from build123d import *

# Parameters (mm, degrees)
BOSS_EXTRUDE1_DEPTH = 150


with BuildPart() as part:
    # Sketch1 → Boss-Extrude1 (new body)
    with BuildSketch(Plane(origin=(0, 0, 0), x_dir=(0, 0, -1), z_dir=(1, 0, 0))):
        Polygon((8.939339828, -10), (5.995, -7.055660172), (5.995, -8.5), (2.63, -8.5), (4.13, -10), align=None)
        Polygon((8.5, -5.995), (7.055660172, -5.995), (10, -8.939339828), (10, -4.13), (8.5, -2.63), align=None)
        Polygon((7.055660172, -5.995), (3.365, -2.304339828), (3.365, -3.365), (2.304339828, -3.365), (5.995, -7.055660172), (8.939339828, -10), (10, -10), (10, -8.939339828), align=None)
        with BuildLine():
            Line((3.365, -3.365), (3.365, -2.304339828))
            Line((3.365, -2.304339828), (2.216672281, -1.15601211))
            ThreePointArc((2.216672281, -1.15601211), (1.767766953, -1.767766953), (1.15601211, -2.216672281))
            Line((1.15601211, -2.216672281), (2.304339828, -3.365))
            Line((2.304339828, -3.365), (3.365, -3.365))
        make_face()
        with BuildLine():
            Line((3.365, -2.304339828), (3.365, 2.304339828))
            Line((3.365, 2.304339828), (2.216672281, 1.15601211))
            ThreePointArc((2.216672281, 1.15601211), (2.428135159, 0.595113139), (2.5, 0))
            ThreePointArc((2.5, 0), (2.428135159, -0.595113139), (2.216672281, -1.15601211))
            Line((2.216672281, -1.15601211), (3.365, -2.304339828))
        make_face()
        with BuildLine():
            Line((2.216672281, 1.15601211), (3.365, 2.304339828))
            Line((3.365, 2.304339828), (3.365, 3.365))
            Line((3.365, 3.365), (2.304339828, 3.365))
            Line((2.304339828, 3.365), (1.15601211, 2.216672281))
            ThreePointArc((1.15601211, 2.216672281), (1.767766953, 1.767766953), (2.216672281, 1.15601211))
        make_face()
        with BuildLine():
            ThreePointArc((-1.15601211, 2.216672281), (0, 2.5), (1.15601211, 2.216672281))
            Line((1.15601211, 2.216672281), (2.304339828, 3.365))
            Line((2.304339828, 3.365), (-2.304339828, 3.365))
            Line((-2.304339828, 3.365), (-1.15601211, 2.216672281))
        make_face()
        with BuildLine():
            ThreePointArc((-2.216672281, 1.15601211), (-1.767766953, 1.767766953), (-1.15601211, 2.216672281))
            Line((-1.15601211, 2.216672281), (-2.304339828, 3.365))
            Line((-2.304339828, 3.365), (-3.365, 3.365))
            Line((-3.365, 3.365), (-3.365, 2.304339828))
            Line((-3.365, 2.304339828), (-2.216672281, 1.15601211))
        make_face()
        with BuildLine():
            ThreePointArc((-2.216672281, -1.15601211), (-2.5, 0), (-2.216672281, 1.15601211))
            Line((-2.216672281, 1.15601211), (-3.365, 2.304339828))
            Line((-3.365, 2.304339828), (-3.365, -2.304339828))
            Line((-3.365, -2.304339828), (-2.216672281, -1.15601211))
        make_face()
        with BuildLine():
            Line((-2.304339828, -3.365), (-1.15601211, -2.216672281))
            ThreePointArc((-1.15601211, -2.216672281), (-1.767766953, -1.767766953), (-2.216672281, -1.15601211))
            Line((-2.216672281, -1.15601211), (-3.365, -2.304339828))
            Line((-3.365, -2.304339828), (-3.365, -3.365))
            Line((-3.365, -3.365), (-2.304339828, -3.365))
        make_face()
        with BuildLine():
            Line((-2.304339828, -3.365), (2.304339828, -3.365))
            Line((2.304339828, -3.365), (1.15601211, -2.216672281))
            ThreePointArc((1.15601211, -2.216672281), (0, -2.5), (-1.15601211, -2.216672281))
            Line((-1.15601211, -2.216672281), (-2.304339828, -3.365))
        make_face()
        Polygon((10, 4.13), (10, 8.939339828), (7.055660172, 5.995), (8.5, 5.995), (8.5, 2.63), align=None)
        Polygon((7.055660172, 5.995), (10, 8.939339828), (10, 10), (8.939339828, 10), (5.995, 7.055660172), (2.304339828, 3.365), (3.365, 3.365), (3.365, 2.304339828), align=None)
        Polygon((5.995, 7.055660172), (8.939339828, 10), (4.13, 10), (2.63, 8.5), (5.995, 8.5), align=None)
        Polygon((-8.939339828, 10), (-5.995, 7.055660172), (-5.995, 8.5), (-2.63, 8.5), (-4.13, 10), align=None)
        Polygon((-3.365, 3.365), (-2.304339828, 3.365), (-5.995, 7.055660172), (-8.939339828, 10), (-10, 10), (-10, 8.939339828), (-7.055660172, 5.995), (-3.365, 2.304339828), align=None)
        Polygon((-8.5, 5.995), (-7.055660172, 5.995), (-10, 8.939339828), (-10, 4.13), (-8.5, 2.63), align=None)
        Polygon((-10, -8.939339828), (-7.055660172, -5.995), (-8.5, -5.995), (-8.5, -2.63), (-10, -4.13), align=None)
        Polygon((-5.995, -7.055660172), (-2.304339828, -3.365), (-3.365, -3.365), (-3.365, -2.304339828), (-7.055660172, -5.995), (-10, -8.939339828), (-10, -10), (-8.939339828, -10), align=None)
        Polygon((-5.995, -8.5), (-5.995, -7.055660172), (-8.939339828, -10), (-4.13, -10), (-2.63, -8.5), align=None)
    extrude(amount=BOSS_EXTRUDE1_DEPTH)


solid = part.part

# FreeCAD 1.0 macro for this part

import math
import FreeCAD as App
import Part
import Sketcher

V = App.Vector
Q = App.Units.Quantity

doc = App.newDocument("Part")
body = doc.addObject("PartDesign::Body", "Body")

# Sketch on YZ plane
sketch1 = body.newObject("Sketcher::SketchObject", "Sketch")
sketch1.AttachmentSupport = (doc.getObject("YZ_Plane"), [""])
sketch1.MapMode = "FlatFace"
sketch1.addGeometry(Part.LineSegment(V(-7.1, -6, 0), V(-8.5, -6, 0)), False)
sketch1.addGeometry(Part.LineSegment(V(-8.5, -6, 0), V(-8.5, -2.6, 0)), False)
sketch1.addGeometry(Part.LineSegment(V(-8.5, -2.6, 0), V(-10, -4.1, 0)), False)
sketch1.addGeometry(Part.LineSegment(V(-10, -4.1, 0), V(-10, -10, 0)), False)
sketch1.addGeometry(Part.LineSegment(V(-10, -10, 0), V(-4.1, -10, 0)), False)
sketch1.addGeometry(Part.LineSegment(V(-4.1, -10, 0), V(-2.6, -8.5, 0)), False)
sketch1.addGeometry(Part.LineSegment(V(-2.6, -8.5, 0), V(-6, -8.5, 0)), False)
sketch1.addGeometry(Part.LineSegment(V(-6, -8.5, 0), V(-6, -7.1, 0)), False)
sketch1.addGeometry(Part.LineSegment(V(-6, -7.1, 0), V(-2.3, -3.4, 0)), False)
sketch1.addGeometry(Part.LineSegment(V(-2.3, -3.4, 0), V(2.3, -3.4, 0)), False)
sketch1.addGeometry(Part.LineSegment(V(2.3, -3.4, 0), V(6, -7.1, 0)), False)
sketch1.addGeometry(Part.LineSegment(V(6, -7.1, 0), V(6, -8.5, 0)), False)
sketch1.addGeometry(Part.LineSegment(V(6, -8.5, 0), V(2.6, -8.5, 0)), False)
sketch1.addGeometry(Part.LineSegment(V(2.6, -8.5, 0), V(4.1, -10, 0)), False)
sketch1.addGeometry(Part.LineSegment(V(4.1, -10, 0), V(10, -10, 0)), False)
sketch1.addGeometry(Part.LineSegment(V(10, -10, 0), V(10, -4.1, 0)), False)
sketch1.addGeometry(Part.LineSegment(V(10, -4.1, 0), V(8.5, -2.6, 0)), False)
sketch1.addGeometry(Part.LineSegment(V(8.5, -2.6, 0), V(8.5, -6, 0)), False)
sketch1.addGeometry(Part.LineSegment(V(8.5, -6, 0), V(7.1, -6, 0)), False)
sketch1.addGeometry(Part.LineSegment(V(7.1, -6, 0), V(3.4, -2.3, 0)), False)
sketch1.addGeometry(Part.LineSegment(V(3.4, -2.3, 0), V(3.4, 2.3, 0)), False)
sketch1.addGeometry(Part.LineSegment(V(3.4, 2.3, 0), V(7.1, 6, 0)), False)
sketch1.addGeometry(Part.LineSegment(V(7.1, 6, 0), V(8.5, 6, 0)), False)
sketch1.addGeometry(Part.LineSegment(V(8.5, 6, 0), V(8.5, 2.6, 0)), False)
sketch1.addGeometry(Part.LineSegment(V(8.5, 2.6, 0), V(10, 4.1, 0)), False)
sketch1.addGeometry(Part.LineSegment(V(10, 4.1, 0), V(10, 10, 0)), False)
sketch1.addGeometry(Part.LineSegment(V(10, 10, 0), V(4.1, 10, 0)), False)
sketch1.addGeometry(Part.LineSegment(V(4.1, 10, 0), V(2.6, 8.5, 0)), False)
sketch1.addGeometry(Part.LineSegment(V(2.6, 8.5, 0), V(6, 8.5, 0)), False)
sketch1.addGeometry(Part.LineSegment(V(6, 8.5, 0), V(6, 7.1, 0)), False)
sketch1.addGeometry(Part.LineSegment(V(6, 7.1, 0), V(2.3, 3.4, 0)), False)
sketch1.addGeometry(Part.LineSegment(V(2.3, 3.4, 0), V(-2.3, 3.4, 0)), False)
sketch1.addGeometry(Part.LineSegment(V(-2.3, 3.4, 0), V(-6, 7.1, 0)), False)
sketch1.addGeometry(Part.LineSegment(V(-6, 7.1, 0), V(-6, 8.5, 0)), False)
sketch1.addGeometry(Part.LineSegment(V(-6, 8.5, 0), V(-2.6, 8.5, 0)), False)
sketch1.addGeometry(Part.LineSegment(V(-2.6, 8.5, 0), V(-4.1, 10, 0)), False)
sketch1.addGeometry(Part.LineSegment(V(-4.1, 10, 0), V(-10, 10, 0)), False)
sketch1.addGeometry(Part.LineSegment(V(-10, 10, 0), V(-10, 4.1, 0)), False)
sketch1.addGeometry(Part.LineSegment(V(-10, 4.1, 0), V(-8.5, 2.6, 0)), False)
sketch1.addGeometry(Part.LineSegment(V(-8.5, 2.6, 0), V(-8.5, 6, 0)), False)
sketch1.addGeometry(Part.LineSegment(V(-8.5, 6, 0), V(-7.1, 6, 0)), False)
sketch1.addGeometry(Part.LineSegment(V(-7.1, 6, 0), V(-3.4, 2.3, 0)), False)
sketch1.addGeometry(Part.LineSegment(V(-3.4, 2.3, 0), V(-3.4, -2.3, 0)), False)
sketch1.addGeometry(Part.LineSegment(V(-3.4, -2.3, 0), V(-7.1, -6, 0)), False)
sketch1.addGeometry(Part.ArcOfCircle(Part.Circle(V(0, 0, 0), V(0, 0, 1), 2.5), math.radians(118), math.radians(152)), False)
sketch1.addGeometry(Part.ArcOfCircle(Part.Circle(V(0, 0, 0), V(0, 0, 1), 2.5), math.radians(62), math.radians(118)), False)
sketch1.addGeometry(Part.ArcOfCircle(Part.Circle(V(0, 0, 0), V(0, 0, 1), 2.5), math.radians(28), math.radians(62)), False)
sketch1.addGeometry(Part.ArcOfCircle(Part.Circle(V(0, 0, 0), V(0, 0, 1), 2.5), math.radians(-28), math.radians(28)), False)
sketch1.addGeometry(Part.ArcOfCircle(Part.Circle(V(0, 0, 0), V(0, 0, 1), 2.5), math.radians(-62), math.radians(-28)), False)
sketch1.addGeometry(Part.ArcOfCircle(Part.Circle(V(0, 0, 0), V(0, 0, 1), 2.5), math.radians(-90), math.radians(-62)), False)
sketch1.addGeometry(Part.ArcOfCircle(Part.Circle(V(0, 0, 0), V(0, 0, 1), 2.5), math.radians(-118), math.radians(-90)), False)
sketch1.addGeometry(Part.ArcOfCircle(Part.Circle(V(0, 0, 0), V(0, 0, 1), 2.5), math.radians(-152), math.radians(-118)), False)
sketch1.addGeometry(Part.ArcOfCircle(Part.Circle(V(0, 0, 0), V(0, 0, 1), 2.5), math.radians(152), math.radians(208)), False)
sketch1.addConstraint(Sketcher.Constraint("Coincident", 0, 2, 1, 1))
sketch1.addConstraint(Sketcher.Constraint("Coincident", 1, 2, 2, 1))
sketch1.addConstraint(Sketcher.Constraint("Coincident", 2, 2, 3, 1))
sketch1.addConstraint(Sketcher.Constraint("Coincident", 3, 2, 4, 1))
sketch1.addConstraint(Sketcher.Constraint("Coincident", 4, 2, 5, 1))
sketch1.addConstraint(Sketcher.Constraint("Coincident", 5, 2, 6, 1))
sketch1.addConstraint(Sketcher.Constraint("Coincident", 6, 2, 7, 1))
sketch1.addConstraint(Sketcher.Constraint("Coincident", 7, 2, 8, 1))
sketch1.addConstraint(Sketcher.Constraint("Coincident", 8, 2, 9, 1))
sketch1.addConstraint(Sketcher.Constraint("Coincident", 9, 2, 10, 1))
sketch1.addConstraint(Sketcher.Constraint("Coincident", 10, 2, 11, 1))
sketch1.addConstraint(Sketcher.Constraint("Coincident", 11, 2, 12, 1))
sketch1.addConstraint(Sketcher.Constraint("Coincident", 12, 2, 13, 1))
sketch1.addConstraint(Sketcher.Constraint("Coincident", 13, 2, 14, 1))
sketch1.addConstraint(Sketcher.Constraint("Coincident", 14, 2, 15, 1))
sketch1.addConstraint(Sketcher.Constraint("Coincident", 15, 2, 16, 1))
sketch1.addConstraint(Sketcher.Constraint("Coincident", 16, 2, 17, 1))
sketch1.addConstraint(Sketcher.Constraint("Coincident", 17, 2, 18, 1))
sketch1.addConstraint(Sketcher.Constraint("Coincident", 18, 2, 19, 1))
sketch1.addConstraint(Sketcher.Constraint("Coincident", 19, 2, 20, 1))
sketch1.addConstraint(Sketcher.Constraint("Coincident", 20, 2, 21, 1))
sketch1.addConstraint(Sketcher.Constraint("Coincident", 21, 2, 22, 1))
sketch1.addConstraint(Sketcher.Constraint("Coincident", 22, 2, 23, 1))
sketch1.addConstraint(Sketcher.Constraint("Coincident", 23, 2, 24, 1))
sketch1.addConstraint(Sketcher.Constraint("Coincident", 24, 2, 25, 1))
sketch1.addConstraint(Sketcher.Constraint("Coincident", 25, 2, 26, 1))
sketch1.addConstraint(Sketcher.Constraint("Coincident", 26, 2, 27, 1))
sketch1.addConstraint(Sketcher.Constraint("Coincident", 27, 2, 28, 1))
sketch1.addConstraint(Sketcher.Constraint("Coincident", 28, 2, 29, 1))
sketch1.addConstraint(Sketcher.Constraint("Coincident", 29, 2, 30, 1))
sketch1.addConstraint(Sketcher.Constraint("Coincident", 30, 2, 31, 1))
sketch1.addConstraint(Sketcher.Constraint("Coincident", 31, 2, 32, 1))
sketch1.addConstraint(Sketcher.Constraint("Coincident", 32, 2, 33, 1))
sketch1.addConstraint(Sketcher.Constraint("Coincident", 33, 2, 34, 1))
sketch1.addConstraint(Sketcher.Constraint("Coincident", 34, 2, 35, 1))
sketch1.addConstraint(Sketcher.Constraint("Coincident", 35, 2, 36, 1))
sketch1.addConstraint(Sketcher.Constraint("Coincident", 36, 2, 37, 1))
sketch1.addConstraint(Sketcher.Constraint("Coincident", 37, 2, 38, 1))
sketch1.addConstraint(Sketcher.Constraint("Coincident", 38, 2, 39, 1))
sketch1.addConstraint(Sketcher.Constraint("Coincident", 39, 2, 40, 1))
sketch1.addConstraint(Sketcher.Constraint("Coincident", 40, 2, 41, 1))
sketch1.addConstraint(Sketcher.Constraint("Coincident", 41, 2, 42, 1))
sketch1.addConstraint(Sketcher.Constraint("Coincident", 42, 2, 43, 1))
sketch1.addConstraint(Sketcher.Constraint("Coincident", 43, 2, 0, 1))
sketch1.addConstraint(Sketcher.Constraint("Tangent", 44, 1, 45, 2))
sketch1.addConstraint(Sketcher.Constraint("Tangent", 45, 1, 46, 2))
sketch1.addConstraint(Sketcher.Constraint("Tangent", 46, 1, 47, 2))
sketch1.addConstraint(Sketcher.Constraint("Tangent", 47, 1, 48, 2))
sketch1.addConstraint(Sketcher.Constraint("Tangent", 48, 1, 49, 2))
sketch1.addConstraint(Sketcher.Constraint("Tangent", 49, 1, 50, 2))
sketch1.addConstraint(Sketcher.Constraint("Tangent", 50, 1, 51, 2))
sketch1.addConstraint(Sketcher.Constraint("Tangent", 51, 1, 52, 2))
sketch1.addConstraint(Sketcher.Constraint("Tangent", 52, 1, 44, 2))
sketch1.addConstraint(Sketcher.Constraint("Horizontal", 0))
sketch1.addConstraint(Sketcher.Constraint("Vertical", 1))
sketch1.addConstraint(Sketcher.Constraint("Vertical", 3))
sketch1.addConstraint(Sketcher.Constraint("Horizontal", 4))
sketch1.addConstraint(Sketcher.Constraint("Horizontal", 6))
sketch1.addConstraint(Sketcher.Constraint("Vertical", 7))
sketch1.addConstraint(Sketcher.Constraint("Horizontal", 9))
sketch1.addConstraint(Sketcher.Constraint("Vertical", 11))
sketch1.addConstraint(Sketcher.Constraint("Horizontal", 12))
sketch1.addConstraint(Sketcher.Constraint("Horizontal", 14))
sketch1.addConstraint(Sketcher.Constraint("Vertical", 15))
sketch1.addConstraint(Sketcher.Constraint("Vertical", 17))
sketch1.addConstraint(Sketcher.Constraint("Horizontal", 18))
sketch1.addConstraint(Sketcher.Constraint("Vertical", 20))
sketch1.addConstraint(Sketcher.Constraint("Horizontal", 22))
sketch1.addConstraint(Sketcher.Constraint("Vertical", 23))
sketch1.addConstraint(Sketcher.Constraint("Vertical", 25))
sketch1.addConstraint(Sketcher.Constraint("Horizontal", 26))
sketch1.addConstraint(Sketcher.Constraint("Horizontal", 28))
sketch1.addConstraint(Sketcher.Constraint("Vertical", 29))
sketch1.addConstraint(Sketcher.Constraint("Horizontal", 31))
sketch1.addConstraint(Sketcher.Constraint("Vertical", 33))
sketch1.addConstraint(Sketcher.Constraint("Horizontal", 34))
sketch1.addConstraint(Sketcher.Constraint("Horizontal", 36))
sketch1.addConstraint(Sketcher.Constraint("Vertical", 37))
sketch1.addConstraint(Sketcher.Constraint("Vertical", 39))
sketch1.addConstraint(Sketcher.Constraint("Horizontal", 40))
sketch1.addConstraint(Sketcher.Constraint("Vertical", 42))
sketch1.addConstraint(Sketcher.Constraint("Coincident", 44, 3, -1, 1))
sketch1.addConstraint(Sketcher.Constraint("Coincident", 46, 3, -1, 1))
sketch1.addConstraint(Sketcher.Constraint("Coincident", 48, 3, -1, 1))
sketch1.addConstraint(Sketcher.Constraint("Coincident", 50, 3, -1, 1))
sketch1.addConstraint(Sketcher.Constraint("Symmetric", 0, 2, 22, 2, -1, 1))
sketch1.addConstraint(Sketcher.Constraint("Symmetric", 2, 2, 24, 2, -1, 1))
sketch1.addConstraint(Sketcher.Constraint("Symmetric", 4, 2, 26, 2, -1, 1))
sketch1.addConstraint(Sketcher.Constraint("Symmetric", 5, 2, 27, 2, -1, 1))
sketch1.addConstraint(Sketcher.Constraint("Symmetric", 7, 2, 29, 2, -1, 1))
sketch1.addConstraint(Sketcher.Constraint("Symmetric", 8, 2, 30, 2, -1, 1))
sketch1.addConstraint(Sketcher.Constraint("Symmetric", 10, 2, 32, 2, -1, 1))
sketch1.addConstraint(Sketcher.Constraint("Symmetric", 12, 2, 34, 2, -1, 1))
sketch1.addConstraint(Sketcher.Constraint("Symmetric", 13, 2, 35, 2, -1, 1))
sketch1.addConstraint(Sketcher.Constraint("Symmetric", 15, 2, 37, 2, -1, 1))
sketch1.addConstraint(Sketcher.Constraint("Symmetric", 16, 2, 38, 2, -1, 1))
sketch1.addConstraint(Sketcher.Constraint("Symmetric", 18, 2, 40, 2, -1, 1))
sketch1.addConstraint(Sketcher.Constraint("Symmetric", 19, 2, 41, 2, -1, 1))
sketch1.addConstraint(Sketcher.Constraint("Symmetric", 7, 2, 10, 2, -2))
sketch1.addConstraint(Sketcher.Constraint("Symmetric", 5, 2, 12, 2, -2))
sketch1.addConstraint(Sketcher.Constraint("Symmetric", 4, 2, 13, 2, -2))
sketch1.addConstraint(Sketcher.Constraint("Symmetric", 2, 2, 15, 2, -2))
sketch1.addConstraint(Sketcher.Constraint("Symmetric", 1, 2, 16, 2, -2))
sketch1.addConstraint(Sketcher.Constraint("Symmetric", 21, 2, 40, 2, -2))
sketch1.addConstraint(Sketcher.Constraint("PointOnObject", 49, 1, -2))
sketch1.addConstraint(Sketcher.Constraint("Parallel", 2, 5))
sketch1.addConstraint(Sketcher.Constraint("Parallel", 5, 8))
sketch1.addConstraint(Sketcher.Constraint("Perpendicular", 8, 10))
sketch1.addConstraint(Sketcher.Constraint("Parallel", 10, 13))
sketch1.addConstraint(Sketcher.Constraint("Parallel", 16, 19))
sketch1.addConstraint(Sketcher.Constraint("Perpendicular", 19, 21))
sketch1.addConstraint(Sketcher.Constraint("Parallel", 21, 24))
sketch1.addConstraint(Sketcher.Constraint("Perpendicular", 30, 32))
sketch1.addConstraint(Sketcher.Constraint("Perpendicular", 41, 43))
sketch1.addConstraint(Sketcher.Constraint("Horizontal", 19, 2, 42, 2))
sketch1.addConstraint(Sketcher.Constraint("Horizontal", 44, 1, 45, 1))
sketch1.addConstraint(Sketcher.Constraint("Horizontal", 48, 1, 50, 1))
sketch1.addConstraint(Sketcher.Constraint("Horizontal", 47, 1, 51, 1))
sketch1.addConstraint(Sketcher.Constraint("Horizontal", 46, 1, 52, 1))
sketch1.addConstraint(Sketcher.Constraint("Vertical", 46, 1, 47, 1))
sketch1.addConstraint(Sketcher.Constraint("Vertical", 45, 1, 48, 1))
sketch1.addConstraint(Sketcher.Constraint("Equal", 34, 1))
sketch1.addConstraint(Sketcher.Constraint("Equal", 36, 3))
sketch1.addConstraint(Sketcher.Constraint("Equal", 40, 7))
sketch1.addConstraint(Sketcher.Constraint("Equal", 31, 20))
sketch1.addConstraint(Sketcher.Constraint("Equal", 2, 5))
sketch1.addConstraint(Sketcher.Constraint("Equal", 10, 19))
sketch1.addConstraint(Sketcher.Constraint("Radius", 44, Q("2.5 mm")))
sketch1.addConstraint(Sketcher.Constraint("DistanceX", 2, 2, -1, 1, Q("10 mm")))
sketch1.addConstraint(Sketcher.Constraint("DistanceX", 4, 1, 4, 2, Q("5.87 mm")))
sketch1.addConstraint(Sketcher.Constraint("DistanceX", 0, 2, -1, 1, Q("8.5 mm")))
sketch1.addConstraint(Sketcher.Constraint("DistanceX", 6, 2, 6, 1, Q("3.365 mm")))
sketch1.addConstraint(Sketcher.Constraint("DistanceY", 8, 2, -1, 1, Q("3.365 mm")))
sketch1.addConstraint(Sketcher.Constraint("DistanceX", 0, 2, 0, 1, Q("1.44434 mm")))
sketch1.addConstraint(Sketcher.Constraint("DistanceX", 44, 1, -1, 1, Q("1.156012 mm")))
sketch1.addConstraint(Sketcher.Constraint("DistanceX", -1, 1, 46, 1, Q("2.216672 mm")))
pad1 = body.newObject("PartDesign::Pad", "Pad")
pad1.Profile = sketch1
pad1.Length = 150

doc.recompute()
